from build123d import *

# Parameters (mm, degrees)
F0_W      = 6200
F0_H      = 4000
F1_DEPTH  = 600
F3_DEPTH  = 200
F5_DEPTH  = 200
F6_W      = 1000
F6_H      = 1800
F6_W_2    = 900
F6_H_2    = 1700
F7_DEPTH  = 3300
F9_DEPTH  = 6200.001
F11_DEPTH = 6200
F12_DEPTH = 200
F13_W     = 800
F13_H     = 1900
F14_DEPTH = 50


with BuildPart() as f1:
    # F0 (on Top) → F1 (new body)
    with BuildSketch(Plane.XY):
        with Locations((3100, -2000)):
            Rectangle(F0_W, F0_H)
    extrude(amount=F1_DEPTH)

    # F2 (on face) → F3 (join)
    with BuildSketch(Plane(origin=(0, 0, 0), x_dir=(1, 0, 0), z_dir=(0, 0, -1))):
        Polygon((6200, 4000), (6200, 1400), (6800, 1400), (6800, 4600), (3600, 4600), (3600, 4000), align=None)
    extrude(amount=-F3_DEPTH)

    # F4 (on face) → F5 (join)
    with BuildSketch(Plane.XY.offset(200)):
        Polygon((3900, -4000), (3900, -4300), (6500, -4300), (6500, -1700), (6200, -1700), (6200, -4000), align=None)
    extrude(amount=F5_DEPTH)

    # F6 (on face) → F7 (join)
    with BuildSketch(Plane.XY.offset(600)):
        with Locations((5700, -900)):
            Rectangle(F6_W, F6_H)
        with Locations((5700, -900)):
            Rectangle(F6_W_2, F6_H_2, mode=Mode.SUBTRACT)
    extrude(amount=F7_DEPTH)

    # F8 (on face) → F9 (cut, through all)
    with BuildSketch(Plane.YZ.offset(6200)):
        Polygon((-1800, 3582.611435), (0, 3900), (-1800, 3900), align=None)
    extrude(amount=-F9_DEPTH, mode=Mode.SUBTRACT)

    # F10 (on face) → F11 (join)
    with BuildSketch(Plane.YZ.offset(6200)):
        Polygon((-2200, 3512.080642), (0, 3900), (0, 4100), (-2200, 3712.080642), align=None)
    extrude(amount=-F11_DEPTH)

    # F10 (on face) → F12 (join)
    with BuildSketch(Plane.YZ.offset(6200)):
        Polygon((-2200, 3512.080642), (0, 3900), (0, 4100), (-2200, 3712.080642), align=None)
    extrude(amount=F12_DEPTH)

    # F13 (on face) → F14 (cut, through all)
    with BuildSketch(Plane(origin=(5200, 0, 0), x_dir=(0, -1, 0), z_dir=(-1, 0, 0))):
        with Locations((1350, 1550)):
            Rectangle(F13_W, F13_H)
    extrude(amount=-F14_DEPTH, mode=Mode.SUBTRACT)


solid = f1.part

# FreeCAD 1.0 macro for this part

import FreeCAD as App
import Part
import Sketcher

V = App.Vector
Q = App.Units.Quantity

doc = App.newDocument("Part")
body = doc.addObject("PartDesign::Body", "Body")

sketch1 = body.newObject("Sketcher::SketchObject", "Sketch")
sketch1.AttachmentSupport = (doc.getObject("XY_Plane"), [""])
sketch1.MapMode = "FlatFace"
sketch1.addGeometry([
    Part.LineSegment(V(0, 0, 0), V(0, -4000, 0)),
    Part.LineSegment(V(0, -4000, 0), V(6200, -4000, 0)),
    Part.LineSegment(V(6200, -4000, 0), V(6200, 0, 0)),
    Part.LineSegment(V(6200, 0, 0), V(0, 0, 0)),
], False)
sketch1.addConstraint([
    Sketcher.Constraint("Coincident", 0, 2, 1, 1),
    Sketcher.Constraint("Coincident", 1, 2, 2, 1),
    Sketcher.Constraint("Coincident", 2, 2, 3, 1),
    Sketcher.Constraint("Coincident", 3, 2, 0, 1),
    Sketcher.Constraint("Vertical", 0),
    Sketcher.Constraint("Horizontal", 1),
    Sketcher.Constraint("Vertical", 2),
    Sketcher.Constraint("Horizontal", 3),
    Sketcher.Constraint("Coincident", 3, 2, -1, 1),
    Sketcher.Constraint("DistanceX", 1, 1, 1, 2, 6200.0),
    Sketcher.Constraint("DistanceY", 0, 2, 0, 1, 4000.0),
])
pad1 = body.newObject("PartDesign::Pad", "Pad")
pad1.Profile = sketch1
pad1.Length = 600

sketch2 = body.newObject("Sketcher::SketchObject", "Sketch001")
sketch2.AttachmentSupport = (doc.getObject("XY_Plane"), [""])
sketch2.MapMode = "FlatFace"
sketch2.addGeometry([
    Part.LineSegment(V(6200, -4000, 0), V(6200, -1400, 0)),
    Part.LineSegment(V(6200, -1400, 0), V(6800, -1400, 0)),
    Part.LineSegment(V(6800, -1400, 0), V(6800, -4600, 0)),
    Part.LineSegment(V(6800, -4600, 0), V(3600, -4600, 0)),
    Part.LineSegment(V(3600, -4600, 0), V(3600, -4000, 0)),
    Part.LineSegment(V(3600, -4000, 0), V(6200, -4000, 0)),
], False)
sketch2.addConstraint([
    Sketcher.Constraint("Coincident", 0, 2, 1, 1),
    Sketcher.Constraint("Coincident", 1, 2, 2, 1),
    Sketcher.Constraint("Coincident", 2, 2, 3, 1),
    Sketcher.Constraint("Coincident", 3, 2, 4, 1),
    Sketcher.Constraint("Coincident", 4, 2, 5, 1),
    Sketcher.Constraint("Coincident", 5, 2, 0, 1),
    Sketcher.Constraint("Vertical", 0),
    Sketcher.Constraint("Horizontal", 1),
    Sketcher.Constraint("Vertical", 2),
    Sketcher.Constraint("Horizontal", 3),
    Sketcher.Constraint("Vertical", 4),
    Sketcher.Constraint("Horizontal", 5),
    Sketcher.Constraint("Equal", 5, 0),
    Sketcher.Constraint("Equal", 3, 2),
    Sketcher.Constraint("DistanceX", 1, 1, 1, 2, 600.0),
    Sketcher.Constraint("DistanceX", 3, 2, 3, 1, 3200.0),
    Sketcher.Constraint("DistanceX", -1, 1, 0, 2, 6200.0),
    Sketcher.Constraint("DistanceY", 0, 2, -1, 1, 1400.0),
])
pad2 = body.newObject("PartDesign::Pad", "Pad001")
pad2.Profile = sketch2
pad2.Length = 200

sketch3 = body.newObject("Sketcher::SketchObject", "Sketch002")
sketch3.AttachmentSupport = (doc.getObject("XY_Plane"), [""])
sketch3.MapMode = "FlatFace"
sketch3.AttachmentOffset = App.Placement(V(0, 0, 200), App.Rotation())
sketch3.addGeometry([
    Part.LineSegment(V(3900, -4000, 0), V(3900, -4300, 0)),
    Part.LineSegment(V(3900, -4300, 0), V(6500, -4300, 0)),
    Part.LineSegment(V(6500, -4300, 0), V(6500, -1700, 0)),
    Part.LineSegment(V(6500, -1700, 0), V(6200, -1700, 0)),
    Part.LineSegment(V(6200, -1700, 0), V(6200, -4000, 0)),
    Part.LineSegment(V(6200, -4000, 0), V(3900, -4000, 0)),
], False)
sketch3.addConstraint([
    Sketcher.Constraint("Coincident", 0, 2, 1, 1),
    Sketcher.Constraint("Coincident", 1, 2, 2, 1),
    Sketcher.Constraint("Coincident", 2, 2, 3, 1),
    Sketcher.Constraint("Coincident", 3, 2, 4, 1),
    Sketcher.Constraint("Coincident", 4, 2, 5, 1),
    Sketcher.Constraint("Coincident", 5, 2, 0, 1),
    Sketcher.Constraint("Vertical", 0),
    Sketcher.Constraint("Horizontal", 1),
    Sketcher.Constraint("Vertical", 2),
    Sketcher.Constraint("Horizontal", 3),
    Sketcher.Constraint("Vertical", 4),
    Sketcher.Constraint("Horizontal", 5),
    Sketcher.Constraint("Equal", 3, 0),
    Sketcher.Constraint("Equal", 1, 2),
    Sketcher.Constraint("DistanceX", 1, 1, 1, 2, 2600.0),
    Sketcher.Constraint("DistanceX", 3, 2, 3, 1, 300.0),
    Sketcher.Constraint("DistanceX", -1, 1, 0, 2, 3900.0),
    Sketcher.Constraint("DistanceY", 0, 2, -1, 1, 4300.0),
])
pad3 = body.newObject("PartDesign::Pad", "Pad002")
pad3.Profile = sketch3
pad3.Length = 200

sketch4 = body.newObject("Sketcher::SketchObject", "Sketch003")
sketch4.AttachmentSupport = (doc.getObject("XY_Plane"), [""])
sketch4.MapMode = "FlatFace"
sketch4.AttachmentOffset = App.Placement(V(0, 0, 600), App.Rotation())
sketch4.addGeometry([
    Part.LineSegment(V(5200, 0, 0), V(5200, -1800, 0)),
    Part.LineSegment(V(5200, -1800, 0), V(6200, -1800, 0)),
    Part.LineSegment(V(6200, -1800, 0), V(6200, 0, 0)),
    Part.LineSegment(V(6200, 0, 0), V(5200, 0, 0)),
    Part.LineSegment(V(6150, -1750, 0), V(5250, -1750, 0)),
    Part.LineSegment(V(5250, -1750, 0), V(5250, -50, 0)),
    Part.LineSegment(V(5250, -50, 0), V(6150, -50, 0)),
    Part.LineSegment(V(6150, -50, 0), V(6150, -1750, 0)),
], False)
sketch4.addConstraint([
    Sketcher.Constraint("Coincident", 0, 2, 1, 1),
    Sketcher.Constraint("Coincident", 1, 2, 2, 1),
    Sketcher.Constraint("Coincident", 2, 2, 3, 1),
    Sketcher.Constraint("Coincident", 3, 2, 0, 1),
    Sketcher.Constraint("Coincident", 4, 2, 5, 1),
    Sketcher.Constraint("Coincident", 5, 2, 6, 1),
    Sketcher.Constraint("Coincident", 6, 2, 7, 1),
    Sketcher.Constraint("Coincident", 7, 2, 4, 1),
    Sketcher.Constraint("Vertical", 0),
    Sketcher.Constraint("Horizontal", 1),
    Sketcher.Constraint("Vertical", 2),
    Sketcher.Constraint("Horizontal", 3),
    Sketcher.Constraint("Horizontal", 4),
    Sketcher.Constraint("Vertical", 5),
    Sketcher.Constraint("Horizontal", 6),
    Sketcher.Constraint("Vertical", 7),
    Sketcher.Constraint("PointOnObject", 2, 2, -1),
    Sketcher.Constraint("DistanceX", 1, 1, 1, 2, 1000.0),
    Sketcher.Constraint("DistanceX", 4, 2, 4, 1, 900.0),
    Sketcher.Constraint("DistanceY", 0, 2, 0, 1, 1800.0),
    Sketcher.Constraint("DistanceY", 5, 1, 5, 2, 1700.0),
    Sketcher.Constraint("DistanceX", -1, 1, 0, 2, 5200.0),
    Sketcher.Constraint("DistanceX", -1, 1, 4, 2, 5250.0),
    Sketcher.Constraint("DistanceY", 4, 2, -1, 1, 1750.0),
])
pad4 = body.newObject("PartDesign::Pad", "Pad003")
pad4.Profile = sketch4
pad4.Length = 3300

sketch5 = body.newObject("Sketcher::SketchObject", "Sketch004")
sketch5.AttachmentSupport = (doc.getObject("YZ_Plane"), [""])
sketch5.MapMode = "FlatFace"
sketch5.AttachmentOffset = App.Placement(V(0, 0, 6200), App.Rotation())
sketch5.addGeometry([
    Part.LineSegment(V(-1800, 3583, 0), V(0, 3900, 0)),
    Part.LineSegment(V(0, 3900, 0), V(-1800, 3900, 0)),
    Part.LineSegment(V(-1800, 3900, 0), V(-1800, 3583, 0)),
], False)
sketch5.addConstraint([
    Sketcher.Constraint("Coincident", 0, 2, 1, 1),
    Sketcher.Constraint("Coincident", 1, 2, 2, 1),
    Sketcher.Constraint("Coincident", 2, 2, 0, 1),
    Sketcher.Constraint("Horizontal", 1),
    Sketcher.Constraint("Vertical", 2),
    Sketcher.Constraint("PointOnObject", 0, 2, -2),
    Sketcher.Constraint("DistanceX", 1, 2, 1, 1, 1800.0),
    Sketcher.Constraint("Angle", 0, Q("10 deg")),
    Sketcher.Constraint("DistanceY", -1, 1, 0, 2, 3900.0),
])
pocket1 = body.newObject("PartDesign::Pocket", "Pocket")
pocket1.Profile = sketch5
pocket1.Type = "ThroughAll"

sketch6 = body.newObject("Sketcher::SketchObject", "Sketch005")
sketch6.AttachmentSupport = (doc.getObject("YZ_Plane"), [""])
sketch6.MapMode = "FlatFace"
sketch6.AttachmentOffset = App.Placement(V(0, 0, 6200), App.Rotation())
sketch6.addGeometry([
    Part.LineSegment(V(-2200, 3512, 0), V(0, 3900, 0)),
    Part.LineSegment(V(0, 3900, 0), V(0, 4100, 0)),
    Part.LineSegment(V(0, 4100, 0), V(-2200, 3712, 0)),
    Part.LineSegment(V(-2200, 3712, 0), V(-2200, 3512, 0)),
], False)
sketch6.addConstraint([
    Sketcher.Constraint("Coincident", 0, 2, 1, 1),
    Sketcher.Constraint("Coincident", 1, 2, 2, 1),
    Sketcher.Constraint("Coincident", 2, 2, 3, 1),
    Sketcher.Constraint("Coincident", 3, 2, 0, 1),
    Sketcher.Constraint("Vertical", 1),
    Sketcher.Constraint("Vertical", 3),
    Sketcher.Constraint("PointOnObject", 0, 2, -2),
    Sketcher.Constraint("Parallel", 0, 2),
    Sketcher.Constraint("DistanceY", 1, 1, 1, 2, 200.0),
    Sketcher.Constraint("Angle", 0, Q("10 deg")),
    Sketcher.Constraint("DistanceY", -1, 1, 0, 2, 3900.0),
    Sketcher.Constraint("DistanceX", 2, 2, -1, 1, 2200.0),
])
pad5 = body.newObject("PartDesign::Pad", "Pad004")
pad5.Profile = sketch6
pad5.Length = 6200
pad5.Reversed = True

sketch7 = body.newObject("Sketcher::SketchObject", "Sketch006")
sketch7.AttachmentSupport = (doc.getObject("YZ_Plane"), [""])
sketch7.MapMode = "FlatFace"
sketch7.AttachmentOffset = App.Placement(V(0, 0, 6200), App.Rotation())
sketch7.addGeometry([
    Part.LineSegment(V(-2200, 3512, 0), V(0, 3900, 0)),
    Part.LineSegment(V(0, 3900, 0), V(0, 4100, 0)),
    Part.LineSegment(V(0, 4100, 0), V(-2200, 3712, 0)),
    Part.LineSegment(V(-2200, 3712, 0), V(-2200, 3512, 0)),
], False)
sketch7.addConstraint([
    Sketcher.Constraint("Coincident", 0, 2, 1, 1),
    Sketcher.Constraint("Coincident", 1, 2, 2, 1),
    Sketcher.Constraint("Coincident", 2, 2, 3, 1),
    Sketcher.Constraint("Coincident", 3, 2, 0, 1),
    Sketcher.Constraint("Vertical", 1),
    Sketcher.Constraint("Vertical", 3),
    Sketcher.Constraint("PointOnObject", 0, 2, -2),
    Sketcher.Constraint("Parallel", 0, 2),
    Sketcher.Constraint("DistanceY", 1, 1, 1, 2, 200.0),
    Sketcher.Constraint("Angle", 0, Q("10 deg")),
    Sketcher.Constraint("DistanceY", -1, 1, 0, 2, 3900.0),
    Sketcher.Constraint("DistanceX", 2, 2, -1, 1, 2200.0),
])
pad6 = body.newObject("PartDesign::Pad", "Pad005")
pad6.Profile = sketch7
pad6.Length = 200

sketch8 = body.newObject("Sketcher::SketchObject", "Sketch007")
sketch8.AttachmentSupport = (doc.getObject("YZ_Plane"), [""])
sketch8.MapMode = "FlatFace"
sketch8.AttachmentOffset = App.Placement(V(0, 0, 5200), App.Rotation())
sketch8.addGeometry([
    Part.LineSegment(V(-950, 2500, 0), V(-950, 600, 0)),
    Part.LineSegment(V(-950, 600, 0), V(-1750, 600, 0)),
    Part.LineSegment(V(-1750, 600, 0), V(-1750, 2500, 0)),
    Part.LineSegment(V(-1750, 2500, 0), V(-950, 2500, 0)),
], False)
sketch8.addConstraint([
    Sketcher.Constraint("Coincident", 0, 2, 1, 1),
    Sketcher.Constraint("Coincident", 1, 2, 2, 1),
    Sketcher.Constraint("Coincident", 2, 2, 3, 1),
    Sketcher.Constraint("Coincident", 3, 2, 0, 1),
    Sketcher.Constraint("Vertical", 0),
    Sketcher.Constraint("Horizontal", 1),
    Sketcher.Constraint("Vertical", 2),
    Sketcher.Constraint("Horizontal", 3),
    Sketcher.Constraint("DistanceX", 1, 2, 1, 1, 800.0),
    Sketcher.Constraint("DistanceY", 0, 2, 0, 1, 1900.0),
    Sketcher.Constraint("DistanceX", 0, 2, -1, 1, 950.0),
    Sketcher.Constraint("DistanceY", -1, 1, 0, 2, 600.0),
])
pocket2 = body.newObject("PartDesign::Pocket", "Pocket001")
pocket2.Profile = sketch8
pocket2.Length = 50
pocket2.Reversed = True

doc.recompute()
